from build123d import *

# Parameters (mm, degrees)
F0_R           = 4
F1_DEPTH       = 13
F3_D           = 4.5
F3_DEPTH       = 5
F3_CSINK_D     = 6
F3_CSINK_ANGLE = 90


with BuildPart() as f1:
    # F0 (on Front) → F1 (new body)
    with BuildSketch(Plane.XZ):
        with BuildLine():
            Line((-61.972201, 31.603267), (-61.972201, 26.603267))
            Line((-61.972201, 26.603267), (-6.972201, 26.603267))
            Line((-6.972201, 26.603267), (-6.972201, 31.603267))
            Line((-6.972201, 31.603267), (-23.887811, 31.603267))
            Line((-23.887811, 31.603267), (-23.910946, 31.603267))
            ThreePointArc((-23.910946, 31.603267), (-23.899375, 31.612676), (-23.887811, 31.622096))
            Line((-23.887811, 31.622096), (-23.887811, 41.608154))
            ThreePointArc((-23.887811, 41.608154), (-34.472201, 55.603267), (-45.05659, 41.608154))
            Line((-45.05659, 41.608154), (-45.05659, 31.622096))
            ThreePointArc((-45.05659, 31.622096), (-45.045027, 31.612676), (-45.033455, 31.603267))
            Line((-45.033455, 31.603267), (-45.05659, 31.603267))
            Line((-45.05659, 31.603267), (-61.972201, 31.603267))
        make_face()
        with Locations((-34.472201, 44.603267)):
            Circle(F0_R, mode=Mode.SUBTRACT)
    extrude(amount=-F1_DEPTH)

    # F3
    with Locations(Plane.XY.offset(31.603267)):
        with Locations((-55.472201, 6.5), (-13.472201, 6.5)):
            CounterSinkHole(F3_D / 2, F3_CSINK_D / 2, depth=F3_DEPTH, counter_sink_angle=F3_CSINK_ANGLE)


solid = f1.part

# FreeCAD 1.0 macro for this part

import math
import FreeCAD as App
import Part
import Sketcher

V = App.Vector

doc = App.newDocument("Part")
body = doc.addObject("PartDesign::Body", "Body")

sketch1 = body.newObject("Sketcher::SketchObject", "Sketch")
sketch1.AttachmentSupport = (doc.getObject("XZ_Plane"), [""])
sketch1.MapMode = "FlatFace"
sketch1.addGeometry([
    Part.LineSegment(V(-61.972201, 31.603267, 0), V(-61.972201, 26.603267, 0)),
    Part.LineSegment(V(-61.972201, 26.603267, 0), V(-6.972201, 26.603267, 0)),
    Part.LineSegment(V(-6.972201, 26.603267, 0), V(-6.972201, 31.603267, 0)),
    Part.LineSegment(V(-6.972201, 31.603267, 0), V(-23.910946, 31.603267, 0)),
    Part.ArcOfCircle(Part.Circle(V(-34.741857, 44.934724, 0), V(0, 0, 1), 17.176624), math.radians(-50.908466), math.radians(-50.808966)),
    Part.LineSegment(V(-23.887811, 31.622096, 0), V(-23.887811, 41.608154, 0)),
    Part.ArcOfCircle(Part.Circle(V(-34.4722, 44.603267, 0), V(0, 0, 1), 11), math.radians(-15.800163), math.radians(195.800163)),
    Part.LineSegment(V(-45.05659, 41.608154, 0), V(-45.05659, 31.622096, 0)),
    Part.ArcOfCircle(Part.Circle(V(-35.165653, 43.751362, 0), V(0, 0, 1), 15.65087), math.radians(-129.195884), math.radians(-129.086684)),
    Part.LineSegment(V(-45.033455, 31.603267, 0), V(-61.972201, 31.603267, 0)),
    Part.Circle(V(-34.472201, 44.603267, 0), V(0, 0, 1), 4),
], False)
sketch1.addConstraint([
    Sketcher.Constraint("Coincident", 0, 2, 1, 1),
    Sketcher.Constraint("Coincident", 1, 2, 2, 1),
    Sketcher.Constraint("Coincident", 2, 2, 3, 1),
    Sketcher.Constraint("Coincident", 3, 2, 4, 1),
    Sketcher.Constraint("Coincident", 4, 2, 5, 1),
    Sketcher.Constraint("Coincident", 5, 2, 6, 1),
    Sketcher.Constraint("Coincident", 6, 2, 7, 1),
    Sketcher.Constraint("Coincident", 7, 2, 8, 1),
    Sketcher.Constraint("Coincident", 8, 2, 9, 1),
    Sketcher.Constraint("Coincident", 9, 2, 0, 1),
    Sketcher.Constraint("Vertical", 0),
    Sketcher.Constraint("Horizontal", 1),
    Sketcher.Constraint("Vertical", 2),
    Sketcher.Constraint("Horizontal", 3),
    Sketcher.Constraint("Vertical", 5),
    Sketcher.Constraint("Vertical", 7),
    Sketcher.Constraint("Horizontal", 9),
    Sketcher.Constraint("Coincident", 10, 3, 6, 3),
    Sketcher.Constraint("Diameter", 10, 8.0),
    Sketcher.Constraint("Radius", 6, 11.0),
    Sketcher.Constraint("DistanceX", 1, 1, 1, 2, 55.0),
    Sketcher.Constraint("DistanceY", 0, 2, 0, 1, 5.0),
    Sketcher.Constraint("DistanceY", 2, 1, 2, 2, 5.0),
    Sketcher.Constraint("DistanceY", 0, 2, 10, 3, 18.0),
    Sketcher.Constraint("DistanceX", 0, 2, 10, 3, 27.5),
    Sketcher.Constraint("Radius", 8, 15.65087),
    Sketcher.Constraint("Radius", 4, 17.176624),
    Sketcher.Constraint("DistanceX", 6, 3, -1, 1, 34.4722),
    Sketcher.Constraint("DistanceX", 3, 2, 3, 1, 16.938745),
    Sketcher.Constraint("DistanceX", 9, 2, 9, 1, 16.938746),
    Sketcher.Constraint("DistanceY", 5, 1, 5, 2, 9.986058),
    Sketcher.Constraint("DistanceY", 7, 2, 7, 1, 9.986058),
    Sketcher.Constraint("DistanceX", 8, 3, 10, 3, 0.693452),
    Sketcher.Constraint("DistanceX", 4, 3, 3, 2, 10.830911),
    Sketcher.Constraint("DistanceY", -1, 1, 4, 3, 44.934724),
])
pad1 = body.newObject("PartDesign::Pad", "Pad")
pad1.Profile = sketch1
pad1.Length = 13
pad1.Reversed = True

sketch2 = body.newObject("Sketcher::SketchObject", "Sketch001")
sketch2.AttachmentSupport = (doc.getObject("XY_Plane"), [""])
sketch2.MapMode = "FlatFace"
sketch2.AttachmentOffset = App.Placement(V(0, 0, 31.603267), App.Rotation())
sketch2.addGeometry([
    Part.Circle(V(-55.5, 6.5, 0), V(0, 0, 1), 2.2),
    Part.Circle(V(-13.5, 6.5, 0), V(0, 0, 1), 2.2),
], False)
sketch2.addConstraint([
    Sketcher.Constraint("Equal", 0, 1),
    Sketcher.Constraint("Horizontal", 0, 3, 1, 3),
    Sketcher.Constraint("Diameter", 0, 4.5),
    Sketcher.Constraint("DistanceX", 0, 3, 1, 3, 42.0),
    Sketcher.Constraint("DistanceY", -1, 1, 0, 3, 6.5),
    Sketcher.Constraint("DistanceX", 0, 3, -1, 1, 55.472201),
])
doc.recompute()
hole = body.newObject("PartDesign::Hole", "Hole")
hole.Profile = sketch2
hole.ThreadType = "None"
hole.Diameter = 4.5
hole.DepthType = "Dimension"
hole.Depth = 5
hole.DrillPoint = "Flat"
hole.HoleCutType = "Countersink"
hole.HoleCutDiameter = 6
hole.HoleCutCountersinkAngle = 90

doc.recompute()
